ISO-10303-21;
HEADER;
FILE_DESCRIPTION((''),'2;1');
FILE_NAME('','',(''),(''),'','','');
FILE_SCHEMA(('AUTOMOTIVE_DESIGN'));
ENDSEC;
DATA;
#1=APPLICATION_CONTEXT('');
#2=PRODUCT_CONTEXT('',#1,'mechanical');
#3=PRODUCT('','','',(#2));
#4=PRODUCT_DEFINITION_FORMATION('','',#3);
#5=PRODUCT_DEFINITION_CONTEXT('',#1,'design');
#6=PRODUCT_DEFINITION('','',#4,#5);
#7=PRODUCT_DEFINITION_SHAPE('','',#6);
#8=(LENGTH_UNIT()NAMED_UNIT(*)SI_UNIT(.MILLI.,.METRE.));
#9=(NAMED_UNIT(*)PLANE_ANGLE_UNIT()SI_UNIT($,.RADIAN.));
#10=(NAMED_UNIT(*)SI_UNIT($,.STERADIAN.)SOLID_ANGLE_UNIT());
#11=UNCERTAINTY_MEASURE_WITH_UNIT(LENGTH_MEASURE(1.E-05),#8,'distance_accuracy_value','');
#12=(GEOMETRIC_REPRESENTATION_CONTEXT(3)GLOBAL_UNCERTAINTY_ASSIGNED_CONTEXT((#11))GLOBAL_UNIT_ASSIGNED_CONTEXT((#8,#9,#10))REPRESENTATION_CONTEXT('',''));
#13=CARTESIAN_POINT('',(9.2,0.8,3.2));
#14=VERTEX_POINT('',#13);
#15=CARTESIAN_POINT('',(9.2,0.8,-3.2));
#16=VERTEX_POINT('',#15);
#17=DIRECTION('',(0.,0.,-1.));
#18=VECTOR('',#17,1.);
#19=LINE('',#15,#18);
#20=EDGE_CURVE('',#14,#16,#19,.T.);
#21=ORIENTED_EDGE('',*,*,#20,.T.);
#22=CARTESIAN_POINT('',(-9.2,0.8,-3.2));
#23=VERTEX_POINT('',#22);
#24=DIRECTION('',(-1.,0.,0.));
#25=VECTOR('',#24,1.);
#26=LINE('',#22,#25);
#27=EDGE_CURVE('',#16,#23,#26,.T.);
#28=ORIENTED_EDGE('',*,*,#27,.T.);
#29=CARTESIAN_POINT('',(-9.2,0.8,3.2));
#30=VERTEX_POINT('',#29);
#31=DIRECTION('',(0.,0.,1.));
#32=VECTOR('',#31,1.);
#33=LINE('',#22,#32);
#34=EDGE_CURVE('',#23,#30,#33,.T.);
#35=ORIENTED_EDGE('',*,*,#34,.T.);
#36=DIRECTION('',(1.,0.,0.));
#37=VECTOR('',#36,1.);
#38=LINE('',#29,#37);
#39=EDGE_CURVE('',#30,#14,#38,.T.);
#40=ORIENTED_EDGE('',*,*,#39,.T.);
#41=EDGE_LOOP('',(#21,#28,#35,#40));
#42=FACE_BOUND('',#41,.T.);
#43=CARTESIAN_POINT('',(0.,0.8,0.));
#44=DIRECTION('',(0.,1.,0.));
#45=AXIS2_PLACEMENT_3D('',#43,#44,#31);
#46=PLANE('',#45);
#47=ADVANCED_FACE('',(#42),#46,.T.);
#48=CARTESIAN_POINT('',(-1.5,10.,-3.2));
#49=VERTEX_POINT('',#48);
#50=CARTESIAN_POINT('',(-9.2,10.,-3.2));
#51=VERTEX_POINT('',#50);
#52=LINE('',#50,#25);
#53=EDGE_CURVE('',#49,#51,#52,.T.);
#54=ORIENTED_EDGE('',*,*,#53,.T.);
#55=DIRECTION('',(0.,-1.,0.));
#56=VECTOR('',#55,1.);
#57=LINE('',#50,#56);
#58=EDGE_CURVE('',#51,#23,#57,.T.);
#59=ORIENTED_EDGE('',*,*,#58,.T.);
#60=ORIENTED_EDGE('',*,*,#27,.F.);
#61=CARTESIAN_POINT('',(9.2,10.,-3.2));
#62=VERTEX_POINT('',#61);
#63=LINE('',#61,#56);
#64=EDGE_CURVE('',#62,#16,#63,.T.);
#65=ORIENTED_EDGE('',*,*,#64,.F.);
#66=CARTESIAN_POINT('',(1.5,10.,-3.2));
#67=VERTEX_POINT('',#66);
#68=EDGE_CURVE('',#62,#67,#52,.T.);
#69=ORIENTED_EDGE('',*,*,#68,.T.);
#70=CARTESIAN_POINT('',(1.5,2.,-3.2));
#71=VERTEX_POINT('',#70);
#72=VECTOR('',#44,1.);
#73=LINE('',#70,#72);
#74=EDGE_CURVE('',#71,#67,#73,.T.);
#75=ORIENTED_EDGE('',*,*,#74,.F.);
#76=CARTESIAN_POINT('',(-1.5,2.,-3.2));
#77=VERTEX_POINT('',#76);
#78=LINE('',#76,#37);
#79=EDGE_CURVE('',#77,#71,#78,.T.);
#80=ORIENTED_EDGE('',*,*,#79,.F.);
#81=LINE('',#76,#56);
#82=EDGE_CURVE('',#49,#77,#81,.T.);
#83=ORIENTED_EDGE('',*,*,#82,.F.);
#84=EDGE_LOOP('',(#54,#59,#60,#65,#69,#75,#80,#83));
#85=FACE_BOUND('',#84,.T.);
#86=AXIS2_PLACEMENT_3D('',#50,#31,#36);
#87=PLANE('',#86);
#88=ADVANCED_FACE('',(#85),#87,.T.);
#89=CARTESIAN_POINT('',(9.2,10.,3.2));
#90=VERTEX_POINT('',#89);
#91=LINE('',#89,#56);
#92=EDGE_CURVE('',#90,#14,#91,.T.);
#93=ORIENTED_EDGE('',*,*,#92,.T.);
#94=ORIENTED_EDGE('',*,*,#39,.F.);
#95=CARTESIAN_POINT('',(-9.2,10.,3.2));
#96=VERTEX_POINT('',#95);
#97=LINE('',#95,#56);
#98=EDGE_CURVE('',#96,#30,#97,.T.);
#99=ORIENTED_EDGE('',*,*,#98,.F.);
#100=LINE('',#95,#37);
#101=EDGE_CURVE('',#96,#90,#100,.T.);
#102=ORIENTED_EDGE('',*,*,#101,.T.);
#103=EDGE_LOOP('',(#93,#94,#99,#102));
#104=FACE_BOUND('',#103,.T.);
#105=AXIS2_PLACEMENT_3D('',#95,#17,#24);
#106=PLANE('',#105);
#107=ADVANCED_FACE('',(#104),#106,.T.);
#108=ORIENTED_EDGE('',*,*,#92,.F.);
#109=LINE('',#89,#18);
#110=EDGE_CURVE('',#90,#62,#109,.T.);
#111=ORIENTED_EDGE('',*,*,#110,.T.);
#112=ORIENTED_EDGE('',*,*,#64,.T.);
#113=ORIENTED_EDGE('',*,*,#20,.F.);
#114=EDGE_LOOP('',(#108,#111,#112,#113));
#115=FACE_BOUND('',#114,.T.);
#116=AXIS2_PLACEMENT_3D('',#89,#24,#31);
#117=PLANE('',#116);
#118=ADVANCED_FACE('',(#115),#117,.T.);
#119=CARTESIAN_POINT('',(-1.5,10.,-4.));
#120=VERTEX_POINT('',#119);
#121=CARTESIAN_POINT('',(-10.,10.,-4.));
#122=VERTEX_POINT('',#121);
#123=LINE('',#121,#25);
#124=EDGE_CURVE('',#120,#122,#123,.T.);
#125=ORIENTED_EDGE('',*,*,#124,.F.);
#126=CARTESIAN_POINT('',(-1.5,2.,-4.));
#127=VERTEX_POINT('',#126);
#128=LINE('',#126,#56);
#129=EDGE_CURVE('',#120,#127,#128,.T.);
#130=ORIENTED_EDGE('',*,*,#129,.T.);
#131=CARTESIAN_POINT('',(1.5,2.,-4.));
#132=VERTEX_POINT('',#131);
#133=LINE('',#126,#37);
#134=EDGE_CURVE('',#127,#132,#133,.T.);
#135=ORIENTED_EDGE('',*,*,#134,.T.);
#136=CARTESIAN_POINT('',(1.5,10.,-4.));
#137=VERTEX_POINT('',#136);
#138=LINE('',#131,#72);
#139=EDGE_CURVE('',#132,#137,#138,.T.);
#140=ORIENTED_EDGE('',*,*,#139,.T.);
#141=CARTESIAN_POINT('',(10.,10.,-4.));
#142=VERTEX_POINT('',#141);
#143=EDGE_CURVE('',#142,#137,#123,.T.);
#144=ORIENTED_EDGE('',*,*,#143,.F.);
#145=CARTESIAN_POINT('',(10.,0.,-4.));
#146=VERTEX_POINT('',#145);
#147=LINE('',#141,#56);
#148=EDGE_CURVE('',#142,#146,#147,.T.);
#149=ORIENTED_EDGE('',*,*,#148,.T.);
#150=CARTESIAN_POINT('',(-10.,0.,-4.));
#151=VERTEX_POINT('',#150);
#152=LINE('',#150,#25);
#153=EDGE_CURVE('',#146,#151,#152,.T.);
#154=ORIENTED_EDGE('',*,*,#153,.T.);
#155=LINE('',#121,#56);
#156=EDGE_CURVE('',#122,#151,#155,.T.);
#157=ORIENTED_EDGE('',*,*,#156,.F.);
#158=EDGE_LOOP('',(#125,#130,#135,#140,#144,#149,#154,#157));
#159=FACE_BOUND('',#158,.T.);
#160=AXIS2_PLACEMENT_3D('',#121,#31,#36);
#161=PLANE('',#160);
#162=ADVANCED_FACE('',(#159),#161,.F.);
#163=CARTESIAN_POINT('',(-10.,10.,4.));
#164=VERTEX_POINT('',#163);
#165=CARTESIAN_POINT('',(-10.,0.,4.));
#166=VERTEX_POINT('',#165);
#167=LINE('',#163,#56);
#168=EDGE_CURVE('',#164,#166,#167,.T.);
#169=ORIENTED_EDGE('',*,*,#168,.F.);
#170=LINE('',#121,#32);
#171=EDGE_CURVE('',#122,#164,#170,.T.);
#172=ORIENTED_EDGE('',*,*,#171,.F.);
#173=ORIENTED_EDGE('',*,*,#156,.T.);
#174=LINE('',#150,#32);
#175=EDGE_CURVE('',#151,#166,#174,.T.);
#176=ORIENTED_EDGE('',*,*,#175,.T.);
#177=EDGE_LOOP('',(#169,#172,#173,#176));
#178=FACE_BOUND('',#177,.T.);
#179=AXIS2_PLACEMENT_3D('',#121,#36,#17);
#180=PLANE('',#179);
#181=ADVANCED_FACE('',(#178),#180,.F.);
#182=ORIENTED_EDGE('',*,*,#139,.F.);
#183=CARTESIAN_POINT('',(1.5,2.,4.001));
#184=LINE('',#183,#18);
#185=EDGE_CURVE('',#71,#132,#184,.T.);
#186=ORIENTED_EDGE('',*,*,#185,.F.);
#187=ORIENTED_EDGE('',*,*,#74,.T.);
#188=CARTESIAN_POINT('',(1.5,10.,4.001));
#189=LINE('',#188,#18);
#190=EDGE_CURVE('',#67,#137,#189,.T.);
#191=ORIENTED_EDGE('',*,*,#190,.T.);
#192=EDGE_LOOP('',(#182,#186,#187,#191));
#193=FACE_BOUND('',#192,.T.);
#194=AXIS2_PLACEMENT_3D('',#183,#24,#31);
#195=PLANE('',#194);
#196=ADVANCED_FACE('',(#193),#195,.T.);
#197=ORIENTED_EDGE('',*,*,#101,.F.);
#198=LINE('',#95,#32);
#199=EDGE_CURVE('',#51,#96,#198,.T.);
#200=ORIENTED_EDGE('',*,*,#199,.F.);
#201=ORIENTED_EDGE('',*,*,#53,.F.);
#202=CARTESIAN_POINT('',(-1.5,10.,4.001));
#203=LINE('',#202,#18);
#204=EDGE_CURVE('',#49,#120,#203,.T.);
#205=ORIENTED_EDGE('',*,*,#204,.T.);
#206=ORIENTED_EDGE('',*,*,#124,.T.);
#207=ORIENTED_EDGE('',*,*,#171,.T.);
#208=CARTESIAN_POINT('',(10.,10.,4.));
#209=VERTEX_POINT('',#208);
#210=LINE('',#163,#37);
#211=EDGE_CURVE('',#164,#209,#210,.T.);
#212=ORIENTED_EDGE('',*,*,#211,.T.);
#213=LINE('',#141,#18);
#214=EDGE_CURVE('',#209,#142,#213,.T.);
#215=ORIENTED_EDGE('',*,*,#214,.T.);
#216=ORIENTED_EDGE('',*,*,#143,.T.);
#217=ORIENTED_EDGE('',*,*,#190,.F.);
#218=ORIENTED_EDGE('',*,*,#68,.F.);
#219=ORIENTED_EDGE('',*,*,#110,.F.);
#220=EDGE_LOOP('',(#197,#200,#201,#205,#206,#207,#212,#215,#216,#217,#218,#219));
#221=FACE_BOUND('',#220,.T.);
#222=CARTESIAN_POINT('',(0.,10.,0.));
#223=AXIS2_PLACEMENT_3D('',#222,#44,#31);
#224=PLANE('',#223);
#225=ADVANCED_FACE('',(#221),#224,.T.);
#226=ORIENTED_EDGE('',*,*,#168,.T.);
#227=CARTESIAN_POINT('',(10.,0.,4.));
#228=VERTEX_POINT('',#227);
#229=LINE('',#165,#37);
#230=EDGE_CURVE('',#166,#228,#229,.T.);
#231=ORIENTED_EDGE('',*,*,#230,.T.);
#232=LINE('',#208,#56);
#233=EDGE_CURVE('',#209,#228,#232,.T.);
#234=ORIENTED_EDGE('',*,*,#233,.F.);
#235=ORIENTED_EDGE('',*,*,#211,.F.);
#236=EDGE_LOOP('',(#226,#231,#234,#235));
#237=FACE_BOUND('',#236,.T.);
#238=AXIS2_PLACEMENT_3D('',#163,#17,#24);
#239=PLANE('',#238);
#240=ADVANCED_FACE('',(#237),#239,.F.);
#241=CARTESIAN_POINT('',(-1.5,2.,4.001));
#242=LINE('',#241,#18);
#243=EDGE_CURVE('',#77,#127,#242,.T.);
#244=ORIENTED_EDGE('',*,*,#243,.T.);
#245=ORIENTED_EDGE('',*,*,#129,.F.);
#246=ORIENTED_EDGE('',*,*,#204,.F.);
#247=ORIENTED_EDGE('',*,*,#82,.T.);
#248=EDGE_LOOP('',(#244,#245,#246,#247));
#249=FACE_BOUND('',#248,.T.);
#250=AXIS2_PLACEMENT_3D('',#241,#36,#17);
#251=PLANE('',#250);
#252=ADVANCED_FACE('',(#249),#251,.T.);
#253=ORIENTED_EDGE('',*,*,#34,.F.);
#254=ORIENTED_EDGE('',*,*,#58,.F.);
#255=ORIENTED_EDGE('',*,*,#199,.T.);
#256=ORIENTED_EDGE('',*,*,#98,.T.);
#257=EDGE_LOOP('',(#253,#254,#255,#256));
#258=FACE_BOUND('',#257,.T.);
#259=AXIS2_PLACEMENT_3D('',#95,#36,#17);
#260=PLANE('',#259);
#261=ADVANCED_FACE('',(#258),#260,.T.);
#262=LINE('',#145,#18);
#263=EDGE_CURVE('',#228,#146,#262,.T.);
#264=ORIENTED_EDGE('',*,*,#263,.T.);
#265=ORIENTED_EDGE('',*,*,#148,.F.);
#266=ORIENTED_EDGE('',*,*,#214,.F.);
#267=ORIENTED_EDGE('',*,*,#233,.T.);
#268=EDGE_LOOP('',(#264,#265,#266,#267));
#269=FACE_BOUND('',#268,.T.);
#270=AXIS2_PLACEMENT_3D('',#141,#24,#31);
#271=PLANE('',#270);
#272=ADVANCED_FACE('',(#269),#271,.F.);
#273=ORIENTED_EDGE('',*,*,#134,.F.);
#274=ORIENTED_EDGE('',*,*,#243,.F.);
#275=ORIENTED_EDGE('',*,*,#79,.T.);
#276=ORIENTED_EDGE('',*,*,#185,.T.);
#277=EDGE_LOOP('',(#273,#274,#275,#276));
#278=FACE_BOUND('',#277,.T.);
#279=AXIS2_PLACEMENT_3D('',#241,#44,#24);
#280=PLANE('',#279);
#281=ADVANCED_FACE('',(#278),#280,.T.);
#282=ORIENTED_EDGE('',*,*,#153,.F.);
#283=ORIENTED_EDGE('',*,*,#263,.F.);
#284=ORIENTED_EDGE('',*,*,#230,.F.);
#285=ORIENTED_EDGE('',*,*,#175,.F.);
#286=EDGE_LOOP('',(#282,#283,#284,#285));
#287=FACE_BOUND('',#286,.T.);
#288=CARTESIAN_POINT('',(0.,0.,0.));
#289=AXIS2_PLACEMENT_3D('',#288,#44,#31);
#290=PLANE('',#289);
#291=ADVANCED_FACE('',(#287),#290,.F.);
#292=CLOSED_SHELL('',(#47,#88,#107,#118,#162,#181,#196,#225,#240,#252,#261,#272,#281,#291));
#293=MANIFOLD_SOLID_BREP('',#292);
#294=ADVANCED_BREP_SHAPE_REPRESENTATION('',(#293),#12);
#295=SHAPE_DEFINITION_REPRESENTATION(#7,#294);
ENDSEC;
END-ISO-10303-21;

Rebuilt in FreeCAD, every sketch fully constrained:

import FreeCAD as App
import Part
import Sketcher
from FreeCAD import Vector
Q = App.Units.Quantity


def add_polygon(sketch, points):
    """Adds a closed chain of lines whose ends are joined by coincident constraints."""
    first, n = sketch.GeometryCount, len(points)
    for a, b in zip(points, points[1:] + points[:1]):
        sketch.addGeometry(Part.LineSegment(App.Vector(*a, 0), App.Vector(*b, 0)), False)
    for i in range(n):
        sketch.addConstraint(Sketcher.Constraint("Coincident", first + i, 2, first + (i + 1) % n, 1))

doc = App.newDocument("Part")
body = doc.addObject("PartDesign::Body", "Body")

sketch1 = doc.addObject("Sketcher::SketchObject", "Sketch")
body.addObject(sketch1)
sketch1.AttachmentSupport = (doc.XZ_Plane, [""])
sketch1.MapMode = "FlatFace"
add_polygon(sketch1, [(-10, -4), (-10, 4), (10, 4), (10, -4)])
add_polygon(sketch1, [(9, 3), (-9, 3), (-9, -3), (9, -3)])
sketch1.addConstraint([
    Sketcher.Constraint("Vertical", 0),
    Sketcher.Constraint("Horizontal", 1),
    Sketcher.Constraint("Vertical", 2),
    Sketcher.Constraint("Horizontal", 3),
    Sketcher.Constraint("Horizontal", 4),
    Sketcher.Constraint("Vertical", 5),
    Sketcher.Constraint("Horizontal", 6),
    Sketcher.Constraint("Vertical", 7),
    Sketcher.Constraint("Symmetric", 0, 2, 2, 2, -1, 1),
    Sketcher.Constraint("Symmetric", 4, 2, 6, 2, -1, 1),
    Sketcher.Constraint("DistanceX", 1, 1, 1, 2, Q("20 mm")),
    Sketcher.Constraint("DistanceY", 0, 1, 0, 2, Q("8 mm")),
    Sketcher.Constraint("DistanceX", 4, 2, 4, 1, Q("18.4 mm")),
    Sketcher.Constraint("DistanceY", 5, 2, 5, 1, Q("6.4 mm")),
])
pad1 = doc.addObject("PartDesign::Pad", "Pad")
body.addObject(pad1)
pad1.Profile = sketch1
pad1.Length = 10
pad1.Reversed = True

sketch2 = doc.addObject("Sketcher::SketchObject", "Sketch001")
body.addObject(sketch2)
sketch2.AttachmentSupport = (doc.XZ_Plane, [""])
sketch2.MapMode = "FlatFace"
add_polygon(sketch2, [(-9, -3), (-9, 3), (9, 3), (9, -3)])
sketch2.addConstraint([
    Sketcher.Constraint("Vertical", 0),
    Sketcher.Constraint("Horizontal", 1),
    Sketcher.Constraint("Vertical", 2),
    Sketcher.Constraint("Horizontal", 3),
    Sketcher.Constraint("Symmetric", 0, 2, 2, 2, -1, 1),
    Sketcher.Constraint("DistanceX", 1, 1, 1, 2, Q("18.4 mm")),
    Sketcher.Constraint("DistanceY", 0, 1, 0, 2, Q("6.4 mm")),
])
pad2 = doc.addObject("PartDesign::Pad", "Pad001")
body.addObject(pad2)
pad2.Profile = sketch2
pad2.Length = 0.8
pad2.Reversed = True

sketch3 = doc.addObject("Sketcher::SketchObject", "Sketch002")
body.addObject(sketch3)
sketch3.AttachmentSupport = (doc.XY_Plane, [""])
sketch3.MapMode = "FlatFace"
sketch3.AttachmentOffset = App.Placement(Vector(0, 0, -4), App.Rotation())
add_polygon(sketch3, [(-1.5, 10), (-1.5, 2), (1.5, 2), (1.5, 10)])
sketch3.addConstraint([
    Sketcher.Constraint("Vertical", 0),
    Sketcher.Constraint("Horizontal", 1),
    Sketcher.Constraint("Vertical", 2),
    Sketcher.Constraint("Horizontal", 3),
    Sketcher.Constraint("DistanceX", 1, 1, 1, 2, Q("3 mm")),
    Sketcher.Constraint("DistanceY", 0, 2, 0, 1, Q("8 mm")),
    Sketcher.Constraint("DistanceY", -1, 1, 0, 2, Q("2 mm")),
    Sketcher.Constraint("DistanceX", 0, 2, -1, 1, Q("1.5 mm")),
])
pocket1 = doc.addObject("PartDesign::Pocket", "Pocket")
body.addObject(pocket1)
pocket1.Profile = sketch3
pocket1.Type = "UpToFirst"
pocket1.Reversed = True

doc.recompute()
